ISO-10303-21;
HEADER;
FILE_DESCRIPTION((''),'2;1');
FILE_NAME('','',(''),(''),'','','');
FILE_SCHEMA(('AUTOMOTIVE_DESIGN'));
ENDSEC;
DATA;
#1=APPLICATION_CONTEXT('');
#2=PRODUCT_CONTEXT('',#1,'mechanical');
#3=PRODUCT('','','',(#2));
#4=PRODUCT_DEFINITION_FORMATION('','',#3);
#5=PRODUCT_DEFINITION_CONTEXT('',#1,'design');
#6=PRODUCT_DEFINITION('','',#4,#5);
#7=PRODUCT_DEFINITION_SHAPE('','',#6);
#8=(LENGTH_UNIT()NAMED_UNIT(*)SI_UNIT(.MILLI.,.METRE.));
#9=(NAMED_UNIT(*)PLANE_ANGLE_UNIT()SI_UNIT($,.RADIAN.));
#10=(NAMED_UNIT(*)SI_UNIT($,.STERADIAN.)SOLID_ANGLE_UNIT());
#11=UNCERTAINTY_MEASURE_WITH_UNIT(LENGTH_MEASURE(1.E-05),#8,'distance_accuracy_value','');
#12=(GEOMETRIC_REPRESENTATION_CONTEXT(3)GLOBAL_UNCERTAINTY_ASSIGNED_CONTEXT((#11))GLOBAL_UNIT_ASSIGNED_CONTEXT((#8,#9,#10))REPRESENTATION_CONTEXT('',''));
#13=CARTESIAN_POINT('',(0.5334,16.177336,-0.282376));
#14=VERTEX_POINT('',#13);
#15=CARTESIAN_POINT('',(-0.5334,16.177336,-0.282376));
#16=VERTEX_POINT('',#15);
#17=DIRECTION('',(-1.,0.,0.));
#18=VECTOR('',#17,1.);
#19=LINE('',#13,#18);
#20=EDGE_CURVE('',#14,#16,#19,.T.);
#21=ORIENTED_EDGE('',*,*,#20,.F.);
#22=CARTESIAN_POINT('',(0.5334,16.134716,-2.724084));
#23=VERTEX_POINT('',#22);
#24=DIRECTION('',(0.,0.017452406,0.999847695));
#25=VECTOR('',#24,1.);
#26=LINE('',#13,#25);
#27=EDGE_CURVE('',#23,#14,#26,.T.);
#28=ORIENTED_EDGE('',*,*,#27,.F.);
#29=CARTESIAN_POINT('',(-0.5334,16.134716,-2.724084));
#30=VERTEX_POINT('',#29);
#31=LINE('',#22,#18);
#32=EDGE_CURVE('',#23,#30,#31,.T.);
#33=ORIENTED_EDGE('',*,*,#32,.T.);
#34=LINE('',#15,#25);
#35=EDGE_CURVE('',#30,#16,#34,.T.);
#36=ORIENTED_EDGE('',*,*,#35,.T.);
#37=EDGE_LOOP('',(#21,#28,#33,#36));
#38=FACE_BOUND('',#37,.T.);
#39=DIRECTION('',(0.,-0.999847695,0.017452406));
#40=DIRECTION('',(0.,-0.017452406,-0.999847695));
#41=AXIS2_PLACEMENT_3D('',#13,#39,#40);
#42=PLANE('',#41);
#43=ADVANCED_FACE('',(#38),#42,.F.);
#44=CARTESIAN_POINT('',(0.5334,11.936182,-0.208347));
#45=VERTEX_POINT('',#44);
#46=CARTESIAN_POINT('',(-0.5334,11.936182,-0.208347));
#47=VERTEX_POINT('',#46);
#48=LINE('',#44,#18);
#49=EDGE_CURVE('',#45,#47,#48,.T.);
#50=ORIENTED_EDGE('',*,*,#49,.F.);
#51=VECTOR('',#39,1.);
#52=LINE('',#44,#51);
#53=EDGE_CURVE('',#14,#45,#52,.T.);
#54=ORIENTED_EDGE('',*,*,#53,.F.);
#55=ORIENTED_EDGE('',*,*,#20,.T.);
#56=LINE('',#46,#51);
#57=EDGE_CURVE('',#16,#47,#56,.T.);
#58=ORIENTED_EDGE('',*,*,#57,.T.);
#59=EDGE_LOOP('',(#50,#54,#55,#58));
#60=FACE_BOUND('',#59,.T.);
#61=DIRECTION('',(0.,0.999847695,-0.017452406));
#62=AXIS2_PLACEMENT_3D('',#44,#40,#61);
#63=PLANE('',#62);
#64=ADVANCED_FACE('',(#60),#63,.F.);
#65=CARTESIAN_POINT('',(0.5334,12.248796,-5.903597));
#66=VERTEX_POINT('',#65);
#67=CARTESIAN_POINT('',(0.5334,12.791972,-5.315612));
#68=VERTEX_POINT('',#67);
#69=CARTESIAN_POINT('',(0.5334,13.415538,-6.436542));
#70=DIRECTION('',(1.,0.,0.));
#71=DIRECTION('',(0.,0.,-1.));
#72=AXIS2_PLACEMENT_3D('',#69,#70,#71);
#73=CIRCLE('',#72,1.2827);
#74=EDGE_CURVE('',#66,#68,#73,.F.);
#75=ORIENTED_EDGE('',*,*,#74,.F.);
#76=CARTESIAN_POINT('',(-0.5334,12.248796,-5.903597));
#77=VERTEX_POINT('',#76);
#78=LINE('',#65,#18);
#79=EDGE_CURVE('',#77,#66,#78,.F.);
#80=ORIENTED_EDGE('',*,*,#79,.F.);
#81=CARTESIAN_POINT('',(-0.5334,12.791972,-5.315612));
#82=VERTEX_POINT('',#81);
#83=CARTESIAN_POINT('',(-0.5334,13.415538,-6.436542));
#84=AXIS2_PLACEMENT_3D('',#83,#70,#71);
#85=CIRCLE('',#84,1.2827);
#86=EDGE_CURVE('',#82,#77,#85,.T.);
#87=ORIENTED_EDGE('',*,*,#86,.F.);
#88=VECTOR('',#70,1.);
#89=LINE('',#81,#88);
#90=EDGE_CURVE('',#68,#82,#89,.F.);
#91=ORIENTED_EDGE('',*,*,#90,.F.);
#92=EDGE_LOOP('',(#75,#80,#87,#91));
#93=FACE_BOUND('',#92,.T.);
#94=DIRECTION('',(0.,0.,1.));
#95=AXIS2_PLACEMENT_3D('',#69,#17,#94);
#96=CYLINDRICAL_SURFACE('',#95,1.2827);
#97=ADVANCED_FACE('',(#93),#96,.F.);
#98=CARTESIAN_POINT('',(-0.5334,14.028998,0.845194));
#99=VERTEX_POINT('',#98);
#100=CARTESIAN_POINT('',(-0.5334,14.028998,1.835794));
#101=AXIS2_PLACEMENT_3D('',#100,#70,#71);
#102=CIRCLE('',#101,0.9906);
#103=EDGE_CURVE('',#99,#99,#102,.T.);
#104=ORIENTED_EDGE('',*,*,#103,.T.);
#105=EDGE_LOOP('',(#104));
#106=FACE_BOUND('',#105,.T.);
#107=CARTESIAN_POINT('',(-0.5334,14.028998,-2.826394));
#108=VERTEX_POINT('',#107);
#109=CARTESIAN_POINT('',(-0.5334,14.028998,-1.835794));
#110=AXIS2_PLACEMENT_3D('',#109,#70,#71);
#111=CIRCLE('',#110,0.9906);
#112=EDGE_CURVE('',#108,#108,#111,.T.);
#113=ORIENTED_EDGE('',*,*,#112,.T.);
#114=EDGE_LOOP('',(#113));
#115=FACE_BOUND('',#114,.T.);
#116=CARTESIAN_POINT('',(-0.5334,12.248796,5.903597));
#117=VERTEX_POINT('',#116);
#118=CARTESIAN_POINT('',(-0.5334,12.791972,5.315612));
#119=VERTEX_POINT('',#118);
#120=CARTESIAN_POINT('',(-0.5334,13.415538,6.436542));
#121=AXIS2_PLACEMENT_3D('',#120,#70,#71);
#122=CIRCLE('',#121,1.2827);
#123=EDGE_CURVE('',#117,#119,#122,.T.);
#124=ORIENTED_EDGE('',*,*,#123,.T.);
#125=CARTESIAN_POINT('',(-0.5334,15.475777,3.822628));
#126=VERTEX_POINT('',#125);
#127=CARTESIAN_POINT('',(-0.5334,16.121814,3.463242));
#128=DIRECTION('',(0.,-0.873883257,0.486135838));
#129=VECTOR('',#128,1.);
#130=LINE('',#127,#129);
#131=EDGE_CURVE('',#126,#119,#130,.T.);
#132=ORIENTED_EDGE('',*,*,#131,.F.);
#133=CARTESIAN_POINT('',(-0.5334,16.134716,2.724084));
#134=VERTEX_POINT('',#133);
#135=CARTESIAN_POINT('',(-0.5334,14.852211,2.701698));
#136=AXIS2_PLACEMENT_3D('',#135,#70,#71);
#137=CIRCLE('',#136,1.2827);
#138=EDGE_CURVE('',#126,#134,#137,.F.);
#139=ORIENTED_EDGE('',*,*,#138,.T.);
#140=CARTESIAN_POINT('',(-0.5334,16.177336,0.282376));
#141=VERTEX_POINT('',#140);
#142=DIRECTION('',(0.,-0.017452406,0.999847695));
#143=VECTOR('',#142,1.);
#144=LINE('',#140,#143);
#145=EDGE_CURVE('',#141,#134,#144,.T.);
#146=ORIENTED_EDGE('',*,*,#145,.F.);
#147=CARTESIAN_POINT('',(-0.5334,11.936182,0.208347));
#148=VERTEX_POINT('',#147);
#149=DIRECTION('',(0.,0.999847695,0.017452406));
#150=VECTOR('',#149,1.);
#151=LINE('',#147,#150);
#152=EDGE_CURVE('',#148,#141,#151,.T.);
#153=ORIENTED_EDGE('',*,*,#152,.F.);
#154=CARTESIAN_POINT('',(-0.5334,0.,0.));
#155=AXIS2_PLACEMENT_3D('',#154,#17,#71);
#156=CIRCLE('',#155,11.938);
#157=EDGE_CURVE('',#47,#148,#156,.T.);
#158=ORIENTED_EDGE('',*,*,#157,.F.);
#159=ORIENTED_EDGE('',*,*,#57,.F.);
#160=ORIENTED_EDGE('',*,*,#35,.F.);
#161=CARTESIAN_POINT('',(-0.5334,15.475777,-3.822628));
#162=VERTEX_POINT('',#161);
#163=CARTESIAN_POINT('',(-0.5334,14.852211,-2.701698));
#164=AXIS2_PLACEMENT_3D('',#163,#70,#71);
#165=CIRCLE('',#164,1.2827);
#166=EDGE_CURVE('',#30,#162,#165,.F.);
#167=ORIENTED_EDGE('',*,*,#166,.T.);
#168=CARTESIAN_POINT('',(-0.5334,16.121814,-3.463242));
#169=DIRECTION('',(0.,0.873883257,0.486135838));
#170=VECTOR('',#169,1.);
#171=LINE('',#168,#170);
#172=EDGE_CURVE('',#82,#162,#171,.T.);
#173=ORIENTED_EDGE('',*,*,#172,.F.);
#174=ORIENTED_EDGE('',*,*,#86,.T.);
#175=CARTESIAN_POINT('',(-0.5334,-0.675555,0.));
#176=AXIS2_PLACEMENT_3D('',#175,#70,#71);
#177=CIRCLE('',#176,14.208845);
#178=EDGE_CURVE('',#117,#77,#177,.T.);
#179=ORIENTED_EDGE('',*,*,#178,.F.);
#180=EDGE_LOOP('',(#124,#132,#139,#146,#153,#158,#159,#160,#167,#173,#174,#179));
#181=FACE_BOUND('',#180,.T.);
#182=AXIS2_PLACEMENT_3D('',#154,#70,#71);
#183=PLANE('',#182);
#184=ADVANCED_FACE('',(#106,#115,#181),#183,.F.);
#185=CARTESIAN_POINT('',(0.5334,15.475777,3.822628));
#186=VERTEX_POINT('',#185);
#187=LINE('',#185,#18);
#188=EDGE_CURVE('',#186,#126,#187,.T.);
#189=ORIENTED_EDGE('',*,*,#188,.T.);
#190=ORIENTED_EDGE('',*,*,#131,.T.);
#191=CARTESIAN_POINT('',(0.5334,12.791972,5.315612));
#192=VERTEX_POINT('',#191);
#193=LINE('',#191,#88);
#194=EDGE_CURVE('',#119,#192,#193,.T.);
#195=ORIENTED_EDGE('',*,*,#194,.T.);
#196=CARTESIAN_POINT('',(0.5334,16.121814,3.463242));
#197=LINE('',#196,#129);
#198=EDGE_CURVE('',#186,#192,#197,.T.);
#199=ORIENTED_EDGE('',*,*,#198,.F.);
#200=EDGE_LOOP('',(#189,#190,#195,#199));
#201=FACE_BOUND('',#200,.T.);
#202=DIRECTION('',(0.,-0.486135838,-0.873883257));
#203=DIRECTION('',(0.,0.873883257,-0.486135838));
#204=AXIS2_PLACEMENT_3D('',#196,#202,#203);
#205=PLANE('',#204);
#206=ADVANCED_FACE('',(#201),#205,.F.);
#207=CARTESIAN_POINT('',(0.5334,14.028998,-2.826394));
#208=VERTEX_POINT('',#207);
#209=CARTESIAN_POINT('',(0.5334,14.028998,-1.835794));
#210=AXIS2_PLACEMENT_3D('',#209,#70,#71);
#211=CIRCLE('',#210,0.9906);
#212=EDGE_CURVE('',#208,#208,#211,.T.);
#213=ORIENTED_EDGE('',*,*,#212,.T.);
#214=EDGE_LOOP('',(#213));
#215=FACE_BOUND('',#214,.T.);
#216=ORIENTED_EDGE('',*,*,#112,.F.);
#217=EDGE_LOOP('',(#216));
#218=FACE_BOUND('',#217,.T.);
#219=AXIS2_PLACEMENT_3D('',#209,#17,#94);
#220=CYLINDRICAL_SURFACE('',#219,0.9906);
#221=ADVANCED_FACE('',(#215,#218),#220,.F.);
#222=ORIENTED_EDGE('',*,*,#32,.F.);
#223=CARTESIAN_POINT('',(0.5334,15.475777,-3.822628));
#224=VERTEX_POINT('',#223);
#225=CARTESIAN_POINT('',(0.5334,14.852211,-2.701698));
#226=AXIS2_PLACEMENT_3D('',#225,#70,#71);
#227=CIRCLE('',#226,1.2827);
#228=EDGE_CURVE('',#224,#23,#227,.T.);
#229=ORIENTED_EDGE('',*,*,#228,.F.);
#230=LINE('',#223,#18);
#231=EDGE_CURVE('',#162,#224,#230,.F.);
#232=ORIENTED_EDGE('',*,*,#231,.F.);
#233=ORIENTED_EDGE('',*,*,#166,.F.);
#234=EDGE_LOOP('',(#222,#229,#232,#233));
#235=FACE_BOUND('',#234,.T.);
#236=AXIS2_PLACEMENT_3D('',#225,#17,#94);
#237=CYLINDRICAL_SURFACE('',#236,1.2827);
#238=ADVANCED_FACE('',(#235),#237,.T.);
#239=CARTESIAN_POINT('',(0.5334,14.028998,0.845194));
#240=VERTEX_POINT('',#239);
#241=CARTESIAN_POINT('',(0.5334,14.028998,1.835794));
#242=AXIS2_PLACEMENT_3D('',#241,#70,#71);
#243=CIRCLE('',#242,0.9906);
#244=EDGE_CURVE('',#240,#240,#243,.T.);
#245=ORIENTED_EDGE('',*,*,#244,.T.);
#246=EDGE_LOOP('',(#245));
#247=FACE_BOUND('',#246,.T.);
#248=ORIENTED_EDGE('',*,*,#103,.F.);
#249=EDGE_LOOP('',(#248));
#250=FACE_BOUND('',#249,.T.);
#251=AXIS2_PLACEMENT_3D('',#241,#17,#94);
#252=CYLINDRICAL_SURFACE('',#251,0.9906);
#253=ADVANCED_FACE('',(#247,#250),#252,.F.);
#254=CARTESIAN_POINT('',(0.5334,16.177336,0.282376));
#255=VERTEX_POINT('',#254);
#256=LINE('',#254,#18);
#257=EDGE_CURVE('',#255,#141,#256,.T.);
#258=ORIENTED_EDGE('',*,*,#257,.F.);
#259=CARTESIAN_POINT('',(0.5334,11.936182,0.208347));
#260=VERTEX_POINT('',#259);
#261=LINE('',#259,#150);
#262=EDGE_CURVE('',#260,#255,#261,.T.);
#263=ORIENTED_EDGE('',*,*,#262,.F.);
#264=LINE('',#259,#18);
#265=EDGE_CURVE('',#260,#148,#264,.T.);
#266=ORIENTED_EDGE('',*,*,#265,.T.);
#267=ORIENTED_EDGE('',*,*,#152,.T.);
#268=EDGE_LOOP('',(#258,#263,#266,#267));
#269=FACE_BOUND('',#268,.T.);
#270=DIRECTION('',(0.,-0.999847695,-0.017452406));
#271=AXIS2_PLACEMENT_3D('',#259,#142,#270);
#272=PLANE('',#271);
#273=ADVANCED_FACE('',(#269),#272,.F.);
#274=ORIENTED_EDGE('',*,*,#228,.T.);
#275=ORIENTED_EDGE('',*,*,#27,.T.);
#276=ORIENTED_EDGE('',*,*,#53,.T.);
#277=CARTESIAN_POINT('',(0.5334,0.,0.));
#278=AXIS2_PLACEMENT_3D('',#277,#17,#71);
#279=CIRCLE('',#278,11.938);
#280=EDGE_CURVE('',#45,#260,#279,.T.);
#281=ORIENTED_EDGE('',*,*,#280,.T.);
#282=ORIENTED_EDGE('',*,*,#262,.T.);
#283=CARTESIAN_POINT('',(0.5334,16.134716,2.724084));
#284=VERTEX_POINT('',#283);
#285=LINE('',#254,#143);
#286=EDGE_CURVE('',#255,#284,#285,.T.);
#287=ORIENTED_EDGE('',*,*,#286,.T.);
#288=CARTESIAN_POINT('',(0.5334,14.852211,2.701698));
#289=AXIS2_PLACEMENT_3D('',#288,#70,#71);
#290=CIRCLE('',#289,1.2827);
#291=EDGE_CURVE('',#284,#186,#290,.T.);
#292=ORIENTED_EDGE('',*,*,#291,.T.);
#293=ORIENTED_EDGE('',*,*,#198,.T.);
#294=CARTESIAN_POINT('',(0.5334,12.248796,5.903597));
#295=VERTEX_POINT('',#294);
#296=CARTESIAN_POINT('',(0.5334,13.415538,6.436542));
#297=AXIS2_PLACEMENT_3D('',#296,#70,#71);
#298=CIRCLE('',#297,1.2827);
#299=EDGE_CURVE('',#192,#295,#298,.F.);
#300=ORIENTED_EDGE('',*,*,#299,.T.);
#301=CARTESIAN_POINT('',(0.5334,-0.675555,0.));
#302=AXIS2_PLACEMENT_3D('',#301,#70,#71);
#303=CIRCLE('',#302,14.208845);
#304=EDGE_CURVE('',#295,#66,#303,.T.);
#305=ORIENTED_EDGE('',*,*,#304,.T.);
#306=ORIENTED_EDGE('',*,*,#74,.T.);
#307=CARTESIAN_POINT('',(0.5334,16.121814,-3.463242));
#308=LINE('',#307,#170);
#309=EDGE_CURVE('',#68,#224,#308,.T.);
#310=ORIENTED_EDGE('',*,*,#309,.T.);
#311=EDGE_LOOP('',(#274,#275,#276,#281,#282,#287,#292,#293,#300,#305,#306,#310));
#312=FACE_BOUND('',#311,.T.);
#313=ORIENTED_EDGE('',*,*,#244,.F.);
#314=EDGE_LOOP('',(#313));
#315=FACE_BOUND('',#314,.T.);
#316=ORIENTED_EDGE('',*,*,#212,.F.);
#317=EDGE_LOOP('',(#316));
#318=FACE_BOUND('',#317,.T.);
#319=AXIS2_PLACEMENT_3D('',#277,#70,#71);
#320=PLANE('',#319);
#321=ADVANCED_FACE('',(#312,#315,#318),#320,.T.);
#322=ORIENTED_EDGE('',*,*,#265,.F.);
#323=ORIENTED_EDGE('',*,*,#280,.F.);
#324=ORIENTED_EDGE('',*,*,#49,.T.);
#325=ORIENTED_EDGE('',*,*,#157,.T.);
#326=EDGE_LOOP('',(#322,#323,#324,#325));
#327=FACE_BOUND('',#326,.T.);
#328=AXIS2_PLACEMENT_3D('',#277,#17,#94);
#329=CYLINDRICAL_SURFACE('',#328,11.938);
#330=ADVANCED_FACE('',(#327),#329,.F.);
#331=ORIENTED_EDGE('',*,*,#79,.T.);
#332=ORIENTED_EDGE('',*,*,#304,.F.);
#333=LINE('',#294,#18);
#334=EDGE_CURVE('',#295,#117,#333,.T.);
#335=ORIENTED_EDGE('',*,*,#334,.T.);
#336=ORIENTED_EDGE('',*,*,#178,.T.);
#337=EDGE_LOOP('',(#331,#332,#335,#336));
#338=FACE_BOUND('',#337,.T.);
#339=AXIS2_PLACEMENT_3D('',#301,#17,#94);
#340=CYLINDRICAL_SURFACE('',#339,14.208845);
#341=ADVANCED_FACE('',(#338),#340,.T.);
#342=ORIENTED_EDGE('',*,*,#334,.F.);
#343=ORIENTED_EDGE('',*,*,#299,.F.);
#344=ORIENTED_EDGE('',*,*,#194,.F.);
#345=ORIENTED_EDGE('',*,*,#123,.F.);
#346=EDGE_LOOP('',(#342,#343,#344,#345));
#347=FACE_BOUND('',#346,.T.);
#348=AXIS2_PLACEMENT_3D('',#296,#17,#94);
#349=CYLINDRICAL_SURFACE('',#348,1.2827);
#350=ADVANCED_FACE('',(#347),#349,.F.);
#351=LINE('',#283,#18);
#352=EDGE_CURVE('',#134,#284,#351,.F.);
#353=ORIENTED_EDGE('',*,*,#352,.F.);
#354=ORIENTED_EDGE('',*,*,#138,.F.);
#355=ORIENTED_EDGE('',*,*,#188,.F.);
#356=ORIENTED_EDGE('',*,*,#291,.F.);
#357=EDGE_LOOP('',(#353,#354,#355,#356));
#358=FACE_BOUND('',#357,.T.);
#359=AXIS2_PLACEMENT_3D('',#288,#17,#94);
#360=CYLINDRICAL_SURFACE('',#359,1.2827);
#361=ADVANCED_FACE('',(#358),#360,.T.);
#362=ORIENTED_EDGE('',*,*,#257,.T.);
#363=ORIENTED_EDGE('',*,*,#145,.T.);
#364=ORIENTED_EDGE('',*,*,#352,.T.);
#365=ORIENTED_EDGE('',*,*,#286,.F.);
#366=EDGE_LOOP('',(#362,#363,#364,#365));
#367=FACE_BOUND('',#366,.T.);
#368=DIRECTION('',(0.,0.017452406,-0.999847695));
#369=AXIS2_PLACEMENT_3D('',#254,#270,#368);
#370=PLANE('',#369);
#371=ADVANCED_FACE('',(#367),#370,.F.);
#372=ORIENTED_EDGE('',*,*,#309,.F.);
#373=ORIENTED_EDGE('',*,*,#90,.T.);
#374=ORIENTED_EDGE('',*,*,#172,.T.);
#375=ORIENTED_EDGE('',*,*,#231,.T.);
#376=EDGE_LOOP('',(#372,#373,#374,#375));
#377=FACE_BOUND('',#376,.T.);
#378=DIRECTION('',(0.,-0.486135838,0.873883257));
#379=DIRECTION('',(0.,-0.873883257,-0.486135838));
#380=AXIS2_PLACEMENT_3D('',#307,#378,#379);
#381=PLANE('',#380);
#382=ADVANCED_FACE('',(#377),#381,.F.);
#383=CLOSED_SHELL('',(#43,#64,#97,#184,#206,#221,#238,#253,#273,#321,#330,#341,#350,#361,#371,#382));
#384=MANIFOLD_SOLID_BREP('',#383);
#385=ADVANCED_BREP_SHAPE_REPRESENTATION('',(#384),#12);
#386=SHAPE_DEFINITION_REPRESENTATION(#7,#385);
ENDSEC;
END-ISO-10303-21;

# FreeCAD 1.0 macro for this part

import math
import FreeCAD as App
import Part
import Sketcher
Q = App.Units.Quantity


def edges_at(feature, points):
    """Names of the edges that pass closest to the given points."""
    edges = feature.Shape.Edges
    near = lambda p: min(range(len(edges)), key=lambda i: edges[i].distToShape(Part.Vertex(*p))[0])
    return sorted({f"Edge{near(p) + 1}" for p in points})

doc = App.newDocument("Part")
body = doc.addObject("PartDesign::Body", "Body")

sketch1 = doc.addObject("Sketcher::SketchObject", "Sketch")
body.addObject(sketch1)
sketch1.AttachmentSupport = (doc.YZ_Plane, [""])
sketch1.MapMode = "FlatFace"
sketch1.addGeometry([
    Part.LineSegment(App.Vector(11.94, 0.21, 0), App.Vector(16.18, 0.28, 0)),
    Part.LineSegment(App.Vector(16.18, 0.28, 0), App.Vector(16.12, 3.46, 0)),
    Part.LineSegment(App.Vector(16.12, 3.46, 0), App.Vector(12.41, 5.53, 0)),
    Part.ArcOfCircle(Part.Circle(App.Vector(-0.68, 0, 0), App.Vector(0, 0, 1), 14.21), math.radians(23), math.radians(337)),
    Part.LineSegment(App.Vector(12.41, -5.53, 0), App.Vector(16.12, -3.46, 0)),
    Part.LineSegment(App.Vector(16.12, -3.46, 0), App.Vector(16.18, -0.28, 0)),
    Part.LineSegment(App.Vector(16.18, -0.28, 0), App.Vector(11.94, -0.21, 0)),
    Part.ArcOfCircle(Part.Circle(App.Vector(0, 0, 0), App.Vector(0, 0, 1), 11.94), math.radians(1), math.radians(359)),
    Part.Circle(App.Vector(14.03, 1.84, 0), App.Vector(0, 0, 1), 0.99),
    Part.Circle(App.Vector(14.03, -1.84, 0), App.Vector(0, 0, 1), 0.99),
], False)
sketch1.addConstraint([
    Sketcher.Constraint("Coincident", 0, 2, 1, 1),
    Sketcher.Constraint("Coincident", 1, 2, 2, 1),
    Sketcher.Constraint("Coincident", 2, 2, 3, 1),
    Sketcher.Constraint("Coincident", 3, 2, 4, 1),
    Sketcher.Constraint("Coincident", 4, 2, 5, 1),
    Sketcher.Constraint("Coincident", 5, 2, 6, 1),
    Sketcher.Constraint("Coincident", 6, 2, 7, 2),
    Sketcher.Constraint("Coincident", 7, 1, 0, 1),
    Sketcher.Constraint("Coincident", 7, 3, -1, 1),
    Sketcher.Constraint("Equal", 8, 9),
    Sketcher.Constraint("Symmetric", 8, 3, 9, 3, -1),
    Sketcher.Constraint("Symmetric", 2, 2, 3, 2, -1),
    Sketcher.Constraint("Symmetric", 1, 2, 4, 2, -1),
    Sketcher.Constraint("Symmetric", 0, 2, 5, 2, -1),
    Sketcher.Constraint("Perpendicular", 0, 1),
    Sketcher.Constraint("Perpendicular", 5, 6),
    Sketcher.Constraint("Equal", 0, 2),
    Sketcher.Constraint("Radius", 7, Q("0.47 in")),
    Sketcher.Constraint("Diameter", 8, Q("0.078 in")),
    Sketcher.Constraint("Angle", 0, Q("1 deg")),
    Sketcher.Constraint("Distance", 0, Q("0.167 in")),
    Sketcher.Constraint("Radius", 3, 14.208845),
    Sketcher.Constraint("Distance", 1, 3.18135),
    Sketcher.Constraint("DistanceY", -1, 1, 1, 2, 3.463242),
    Sketcher.Constraint("DistanceY", 9, 3, 8, 3, 3.671589),
    Sketcher.Constraint("DistanceX", 8, 3, 0, 2, 2.148338),
    Sketcher.Constraint("DistanceX", 3, 3, 0, 2, 16.85289),
])
pad1 = doc.addObject("PartDesign::Pad", "Pad")
body.addObject(pad1)
pad1.Profile = sketch1
pad1.Length = Q("0.042 in")
pad1.Midplane = True
doc.recompute()

fillet = doc.addObject("PartDesign::Fillet", "Fillet")
body.addObject(fillet)
fillet.Base = (pad1, edges_at(pad1, [
    (0, 16.122, -3.463),
    (0, 12.415, -5.525),
    (0, 12.415, 5.525),
    (0, 16.122, 3.463),
]))
fillet.Radius = Q("0.0505 in")

doc.recompute()
